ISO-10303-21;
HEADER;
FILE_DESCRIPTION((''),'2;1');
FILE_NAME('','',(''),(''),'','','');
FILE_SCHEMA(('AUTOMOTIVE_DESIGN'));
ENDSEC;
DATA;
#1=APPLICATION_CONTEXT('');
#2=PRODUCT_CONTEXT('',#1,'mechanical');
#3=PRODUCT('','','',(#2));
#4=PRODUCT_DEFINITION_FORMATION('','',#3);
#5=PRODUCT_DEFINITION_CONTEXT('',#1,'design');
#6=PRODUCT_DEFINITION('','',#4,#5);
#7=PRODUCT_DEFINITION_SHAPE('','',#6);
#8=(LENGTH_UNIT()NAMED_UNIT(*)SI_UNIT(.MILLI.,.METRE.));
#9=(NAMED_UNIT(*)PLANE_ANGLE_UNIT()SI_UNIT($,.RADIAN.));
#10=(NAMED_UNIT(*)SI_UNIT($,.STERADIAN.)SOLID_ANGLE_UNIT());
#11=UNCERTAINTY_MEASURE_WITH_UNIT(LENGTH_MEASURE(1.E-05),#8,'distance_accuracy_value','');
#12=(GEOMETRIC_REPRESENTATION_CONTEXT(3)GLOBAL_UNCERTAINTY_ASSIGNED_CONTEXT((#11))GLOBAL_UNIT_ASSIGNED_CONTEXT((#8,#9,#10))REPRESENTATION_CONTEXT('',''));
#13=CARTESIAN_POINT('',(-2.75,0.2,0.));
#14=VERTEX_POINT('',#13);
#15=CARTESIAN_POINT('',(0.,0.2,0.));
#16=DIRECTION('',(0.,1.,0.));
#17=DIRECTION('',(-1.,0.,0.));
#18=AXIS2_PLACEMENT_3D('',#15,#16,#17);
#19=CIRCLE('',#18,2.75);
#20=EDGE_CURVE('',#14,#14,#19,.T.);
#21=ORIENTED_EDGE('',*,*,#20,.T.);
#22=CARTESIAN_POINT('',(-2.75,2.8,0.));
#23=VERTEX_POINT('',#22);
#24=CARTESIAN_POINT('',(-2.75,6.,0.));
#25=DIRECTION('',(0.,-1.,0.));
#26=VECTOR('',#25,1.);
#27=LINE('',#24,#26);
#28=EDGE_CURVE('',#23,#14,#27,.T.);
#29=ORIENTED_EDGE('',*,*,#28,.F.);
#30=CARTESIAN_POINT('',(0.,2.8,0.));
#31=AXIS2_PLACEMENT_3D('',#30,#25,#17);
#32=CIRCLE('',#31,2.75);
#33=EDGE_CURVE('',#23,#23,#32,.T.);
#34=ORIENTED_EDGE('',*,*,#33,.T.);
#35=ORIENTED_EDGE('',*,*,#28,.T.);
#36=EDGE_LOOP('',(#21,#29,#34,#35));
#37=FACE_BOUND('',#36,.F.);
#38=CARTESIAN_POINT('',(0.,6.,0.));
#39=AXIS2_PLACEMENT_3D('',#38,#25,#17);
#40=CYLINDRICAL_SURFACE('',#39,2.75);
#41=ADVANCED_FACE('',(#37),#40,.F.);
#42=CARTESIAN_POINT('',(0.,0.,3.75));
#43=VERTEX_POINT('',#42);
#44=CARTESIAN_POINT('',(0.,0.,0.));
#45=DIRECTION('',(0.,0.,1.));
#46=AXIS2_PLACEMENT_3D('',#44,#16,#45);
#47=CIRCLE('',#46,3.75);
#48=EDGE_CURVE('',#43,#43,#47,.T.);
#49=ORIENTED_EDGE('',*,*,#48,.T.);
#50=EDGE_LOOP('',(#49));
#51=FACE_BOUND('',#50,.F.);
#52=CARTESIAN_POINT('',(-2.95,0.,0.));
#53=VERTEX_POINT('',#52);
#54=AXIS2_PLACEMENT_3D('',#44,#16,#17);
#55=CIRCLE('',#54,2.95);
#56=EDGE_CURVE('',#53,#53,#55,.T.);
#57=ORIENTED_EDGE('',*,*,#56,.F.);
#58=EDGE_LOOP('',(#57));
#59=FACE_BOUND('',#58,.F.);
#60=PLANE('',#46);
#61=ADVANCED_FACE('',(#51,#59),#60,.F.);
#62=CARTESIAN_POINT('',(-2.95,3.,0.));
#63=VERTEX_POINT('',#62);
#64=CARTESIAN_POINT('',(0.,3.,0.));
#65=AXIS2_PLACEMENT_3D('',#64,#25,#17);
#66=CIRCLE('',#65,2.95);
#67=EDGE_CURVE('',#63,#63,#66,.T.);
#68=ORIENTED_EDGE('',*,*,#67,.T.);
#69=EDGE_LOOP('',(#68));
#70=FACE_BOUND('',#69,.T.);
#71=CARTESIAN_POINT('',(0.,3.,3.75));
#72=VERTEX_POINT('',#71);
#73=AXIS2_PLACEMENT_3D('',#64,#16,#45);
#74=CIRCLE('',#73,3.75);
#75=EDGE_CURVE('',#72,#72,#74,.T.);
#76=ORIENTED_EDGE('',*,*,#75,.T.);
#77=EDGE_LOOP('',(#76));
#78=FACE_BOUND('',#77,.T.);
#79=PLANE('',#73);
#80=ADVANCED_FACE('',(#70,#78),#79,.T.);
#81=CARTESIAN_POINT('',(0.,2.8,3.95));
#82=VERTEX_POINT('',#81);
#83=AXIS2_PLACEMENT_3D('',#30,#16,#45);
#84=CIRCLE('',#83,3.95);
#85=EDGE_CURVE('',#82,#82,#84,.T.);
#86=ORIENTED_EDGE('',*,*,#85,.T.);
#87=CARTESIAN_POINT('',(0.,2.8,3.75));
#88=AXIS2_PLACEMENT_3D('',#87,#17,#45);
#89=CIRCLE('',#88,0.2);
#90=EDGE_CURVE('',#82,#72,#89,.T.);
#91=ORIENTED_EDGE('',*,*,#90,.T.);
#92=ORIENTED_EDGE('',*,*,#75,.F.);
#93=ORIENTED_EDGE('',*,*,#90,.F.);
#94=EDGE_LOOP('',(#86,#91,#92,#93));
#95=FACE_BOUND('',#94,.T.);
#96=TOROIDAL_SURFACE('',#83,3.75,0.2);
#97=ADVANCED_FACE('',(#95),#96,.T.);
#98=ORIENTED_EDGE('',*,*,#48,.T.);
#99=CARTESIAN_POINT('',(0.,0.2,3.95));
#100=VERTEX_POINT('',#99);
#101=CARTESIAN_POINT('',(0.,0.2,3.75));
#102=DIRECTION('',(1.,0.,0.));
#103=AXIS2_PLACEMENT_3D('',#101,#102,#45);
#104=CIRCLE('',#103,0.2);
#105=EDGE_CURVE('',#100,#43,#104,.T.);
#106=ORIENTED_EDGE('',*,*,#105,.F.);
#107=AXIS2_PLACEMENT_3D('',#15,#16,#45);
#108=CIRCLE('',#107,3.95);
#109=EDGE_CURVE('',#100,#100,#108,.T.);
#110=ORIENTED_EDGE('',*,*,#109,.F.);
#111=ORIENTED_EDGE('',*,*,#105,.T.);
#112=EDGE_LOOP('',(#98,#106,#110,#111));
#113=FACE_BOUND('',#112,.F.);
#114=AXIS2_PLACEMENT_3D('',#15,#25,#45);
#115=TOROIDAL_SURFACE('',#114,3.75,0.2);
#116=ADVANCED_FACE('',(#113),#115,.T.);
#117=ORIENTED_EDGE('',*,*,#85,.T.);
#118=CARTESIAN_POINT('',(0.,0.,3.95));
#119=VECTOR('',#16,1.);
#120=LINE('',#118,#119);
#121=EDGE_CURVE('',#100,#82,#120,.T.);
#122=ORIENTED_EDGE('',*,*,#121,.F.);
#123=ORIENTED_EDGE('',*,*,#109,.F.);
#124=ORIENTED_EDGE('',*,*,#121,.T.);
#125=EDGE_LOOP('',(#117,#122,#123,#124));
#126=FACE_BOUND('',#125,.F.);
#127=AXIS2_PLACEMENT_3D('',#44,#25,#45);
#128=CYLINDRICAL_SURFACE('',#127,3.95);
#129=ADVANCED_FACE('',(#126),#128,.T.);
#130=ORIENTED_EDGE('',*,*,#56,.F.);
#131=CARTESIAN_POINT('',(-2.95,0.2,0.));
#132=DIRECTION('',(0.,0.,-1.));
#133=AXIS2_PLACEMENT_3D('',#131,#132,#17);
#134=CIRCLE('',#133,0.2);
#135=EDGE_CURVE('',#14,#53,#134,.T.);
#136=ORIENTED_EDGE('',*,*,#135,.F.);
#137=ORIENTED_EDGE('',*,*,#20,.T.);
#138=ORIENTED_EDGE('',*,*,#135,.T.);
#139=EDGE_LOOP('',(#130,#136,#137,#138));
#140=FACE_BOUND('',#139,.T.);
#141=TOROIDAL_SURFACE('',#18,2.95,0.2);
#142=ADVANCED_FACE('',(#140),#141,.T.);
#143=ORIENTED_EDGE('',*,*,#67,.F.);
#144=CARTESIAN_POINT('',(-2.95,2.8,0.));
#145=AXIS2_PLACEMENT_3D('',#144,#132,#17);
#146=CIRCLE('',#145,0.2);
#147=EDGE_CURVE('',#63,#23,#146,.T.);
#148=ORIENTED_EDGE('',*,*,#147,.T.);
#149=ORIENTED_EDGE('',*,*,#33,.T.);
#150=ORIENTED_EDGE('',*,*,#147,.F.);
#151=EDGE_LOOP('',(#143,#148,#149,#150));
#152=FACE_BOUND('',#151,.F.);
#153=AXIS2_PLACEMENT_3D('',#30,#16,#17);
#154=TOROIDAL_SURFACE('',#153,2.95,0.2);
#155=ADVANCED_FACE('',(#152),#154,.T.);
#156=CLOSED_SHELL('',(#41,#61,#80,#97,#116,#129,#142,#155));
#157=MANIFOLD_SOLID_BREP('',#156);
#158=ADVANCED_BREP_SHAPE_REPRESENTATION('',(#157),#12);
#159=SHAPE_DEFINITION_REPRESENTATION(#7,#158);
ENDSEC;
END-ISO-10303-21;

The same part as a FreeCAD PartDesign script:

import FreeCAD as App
import Part
import Sketcher

V = App.Vector


def edges_at(feature, points):
    """Names of the edges that pass closest to the given points."""
    edges = feature.Shape.Edges
    near = lambda p: min(range(len(edges)), key=lambda i: edges[i].distToShape(Part.Vertex(*p))[0])
    return sorted({f"Edge{near(p) + 1}" for p in points})

doc = App.newDocument("Part")
body = doc.addObject("PartDesign::Body", "Body")

sketch1 = doc.addObject("Sketcher::SketchObject", "Sketch")
body.addObject(sketch1)
sketch1.AttachmentSupport = (doc.XZ_Plane, [""])
sketch1.MapMode = "FlatFace"
sketch1.addGeometry(Part.Circle(V(0, 0, 0), V(0, 0, 1), 4), False)
sketch1.addConstraint(Sketcher.Constraint("Coincident", 0, 3, -1, 1))
sketch1.addConstraint(Sketcher.Constraint("Diameter", 0, 7.9))
pad1 = doc.addObject("PartDesign::Pad", "Pad")
body.addObject(pad1)
pad1.Profile = sketch1
pad1.Length = 3
pad1.Reversed = True

sketch2 = doc.addObject("Sketcher::SketchObject", "Sketch001")
body.addObject(sketch2)
sketch2.AttachmentSupport = (doc.XZ_Plane, [""])
sketch2.MapMode = "FlatFace"
sketch2.AttachmentOffset = App.Placement(V(0, 0, -3), App.Rotation())
sketch2.addGeometry(Part.Circle(V(0, 0, 0), V(0, 0, 1), 2.8), False)
sketch2.addConstraint(Sketcher.Constraint("Coincident", 0, 3, -1, 1))
sketch2.addConstraint(Sketcher.Constraint("Diameter", 0, 5.5))
doc.recompute()
hole = doc.addObject("PartDesign::Hole", "Hole")
body.addObject(hole)
hole.Profile = sketch2
hole.ThreadType = "None"
hole.Diameter = 5.5
hole.DepthType = "Dimension"
hole.Depth = 3
hole.DrillPoint = "Angled"
hole.DrillPointAngle = 118
hole.Reversed = True
doc.recompute()

fillet = doc.addObject("PartDesign::Fillet", "Fillet")
body.addObject(fillet)
fillet.Base = (hole, edges_at(hole, [
    (0, 0, -3.95),
    (0, 3, -3.95),
    (2.75, 3, 0),
    (2.75, 0, 0),
]))
fillet.Radius = 0.2

doc.recompute()
